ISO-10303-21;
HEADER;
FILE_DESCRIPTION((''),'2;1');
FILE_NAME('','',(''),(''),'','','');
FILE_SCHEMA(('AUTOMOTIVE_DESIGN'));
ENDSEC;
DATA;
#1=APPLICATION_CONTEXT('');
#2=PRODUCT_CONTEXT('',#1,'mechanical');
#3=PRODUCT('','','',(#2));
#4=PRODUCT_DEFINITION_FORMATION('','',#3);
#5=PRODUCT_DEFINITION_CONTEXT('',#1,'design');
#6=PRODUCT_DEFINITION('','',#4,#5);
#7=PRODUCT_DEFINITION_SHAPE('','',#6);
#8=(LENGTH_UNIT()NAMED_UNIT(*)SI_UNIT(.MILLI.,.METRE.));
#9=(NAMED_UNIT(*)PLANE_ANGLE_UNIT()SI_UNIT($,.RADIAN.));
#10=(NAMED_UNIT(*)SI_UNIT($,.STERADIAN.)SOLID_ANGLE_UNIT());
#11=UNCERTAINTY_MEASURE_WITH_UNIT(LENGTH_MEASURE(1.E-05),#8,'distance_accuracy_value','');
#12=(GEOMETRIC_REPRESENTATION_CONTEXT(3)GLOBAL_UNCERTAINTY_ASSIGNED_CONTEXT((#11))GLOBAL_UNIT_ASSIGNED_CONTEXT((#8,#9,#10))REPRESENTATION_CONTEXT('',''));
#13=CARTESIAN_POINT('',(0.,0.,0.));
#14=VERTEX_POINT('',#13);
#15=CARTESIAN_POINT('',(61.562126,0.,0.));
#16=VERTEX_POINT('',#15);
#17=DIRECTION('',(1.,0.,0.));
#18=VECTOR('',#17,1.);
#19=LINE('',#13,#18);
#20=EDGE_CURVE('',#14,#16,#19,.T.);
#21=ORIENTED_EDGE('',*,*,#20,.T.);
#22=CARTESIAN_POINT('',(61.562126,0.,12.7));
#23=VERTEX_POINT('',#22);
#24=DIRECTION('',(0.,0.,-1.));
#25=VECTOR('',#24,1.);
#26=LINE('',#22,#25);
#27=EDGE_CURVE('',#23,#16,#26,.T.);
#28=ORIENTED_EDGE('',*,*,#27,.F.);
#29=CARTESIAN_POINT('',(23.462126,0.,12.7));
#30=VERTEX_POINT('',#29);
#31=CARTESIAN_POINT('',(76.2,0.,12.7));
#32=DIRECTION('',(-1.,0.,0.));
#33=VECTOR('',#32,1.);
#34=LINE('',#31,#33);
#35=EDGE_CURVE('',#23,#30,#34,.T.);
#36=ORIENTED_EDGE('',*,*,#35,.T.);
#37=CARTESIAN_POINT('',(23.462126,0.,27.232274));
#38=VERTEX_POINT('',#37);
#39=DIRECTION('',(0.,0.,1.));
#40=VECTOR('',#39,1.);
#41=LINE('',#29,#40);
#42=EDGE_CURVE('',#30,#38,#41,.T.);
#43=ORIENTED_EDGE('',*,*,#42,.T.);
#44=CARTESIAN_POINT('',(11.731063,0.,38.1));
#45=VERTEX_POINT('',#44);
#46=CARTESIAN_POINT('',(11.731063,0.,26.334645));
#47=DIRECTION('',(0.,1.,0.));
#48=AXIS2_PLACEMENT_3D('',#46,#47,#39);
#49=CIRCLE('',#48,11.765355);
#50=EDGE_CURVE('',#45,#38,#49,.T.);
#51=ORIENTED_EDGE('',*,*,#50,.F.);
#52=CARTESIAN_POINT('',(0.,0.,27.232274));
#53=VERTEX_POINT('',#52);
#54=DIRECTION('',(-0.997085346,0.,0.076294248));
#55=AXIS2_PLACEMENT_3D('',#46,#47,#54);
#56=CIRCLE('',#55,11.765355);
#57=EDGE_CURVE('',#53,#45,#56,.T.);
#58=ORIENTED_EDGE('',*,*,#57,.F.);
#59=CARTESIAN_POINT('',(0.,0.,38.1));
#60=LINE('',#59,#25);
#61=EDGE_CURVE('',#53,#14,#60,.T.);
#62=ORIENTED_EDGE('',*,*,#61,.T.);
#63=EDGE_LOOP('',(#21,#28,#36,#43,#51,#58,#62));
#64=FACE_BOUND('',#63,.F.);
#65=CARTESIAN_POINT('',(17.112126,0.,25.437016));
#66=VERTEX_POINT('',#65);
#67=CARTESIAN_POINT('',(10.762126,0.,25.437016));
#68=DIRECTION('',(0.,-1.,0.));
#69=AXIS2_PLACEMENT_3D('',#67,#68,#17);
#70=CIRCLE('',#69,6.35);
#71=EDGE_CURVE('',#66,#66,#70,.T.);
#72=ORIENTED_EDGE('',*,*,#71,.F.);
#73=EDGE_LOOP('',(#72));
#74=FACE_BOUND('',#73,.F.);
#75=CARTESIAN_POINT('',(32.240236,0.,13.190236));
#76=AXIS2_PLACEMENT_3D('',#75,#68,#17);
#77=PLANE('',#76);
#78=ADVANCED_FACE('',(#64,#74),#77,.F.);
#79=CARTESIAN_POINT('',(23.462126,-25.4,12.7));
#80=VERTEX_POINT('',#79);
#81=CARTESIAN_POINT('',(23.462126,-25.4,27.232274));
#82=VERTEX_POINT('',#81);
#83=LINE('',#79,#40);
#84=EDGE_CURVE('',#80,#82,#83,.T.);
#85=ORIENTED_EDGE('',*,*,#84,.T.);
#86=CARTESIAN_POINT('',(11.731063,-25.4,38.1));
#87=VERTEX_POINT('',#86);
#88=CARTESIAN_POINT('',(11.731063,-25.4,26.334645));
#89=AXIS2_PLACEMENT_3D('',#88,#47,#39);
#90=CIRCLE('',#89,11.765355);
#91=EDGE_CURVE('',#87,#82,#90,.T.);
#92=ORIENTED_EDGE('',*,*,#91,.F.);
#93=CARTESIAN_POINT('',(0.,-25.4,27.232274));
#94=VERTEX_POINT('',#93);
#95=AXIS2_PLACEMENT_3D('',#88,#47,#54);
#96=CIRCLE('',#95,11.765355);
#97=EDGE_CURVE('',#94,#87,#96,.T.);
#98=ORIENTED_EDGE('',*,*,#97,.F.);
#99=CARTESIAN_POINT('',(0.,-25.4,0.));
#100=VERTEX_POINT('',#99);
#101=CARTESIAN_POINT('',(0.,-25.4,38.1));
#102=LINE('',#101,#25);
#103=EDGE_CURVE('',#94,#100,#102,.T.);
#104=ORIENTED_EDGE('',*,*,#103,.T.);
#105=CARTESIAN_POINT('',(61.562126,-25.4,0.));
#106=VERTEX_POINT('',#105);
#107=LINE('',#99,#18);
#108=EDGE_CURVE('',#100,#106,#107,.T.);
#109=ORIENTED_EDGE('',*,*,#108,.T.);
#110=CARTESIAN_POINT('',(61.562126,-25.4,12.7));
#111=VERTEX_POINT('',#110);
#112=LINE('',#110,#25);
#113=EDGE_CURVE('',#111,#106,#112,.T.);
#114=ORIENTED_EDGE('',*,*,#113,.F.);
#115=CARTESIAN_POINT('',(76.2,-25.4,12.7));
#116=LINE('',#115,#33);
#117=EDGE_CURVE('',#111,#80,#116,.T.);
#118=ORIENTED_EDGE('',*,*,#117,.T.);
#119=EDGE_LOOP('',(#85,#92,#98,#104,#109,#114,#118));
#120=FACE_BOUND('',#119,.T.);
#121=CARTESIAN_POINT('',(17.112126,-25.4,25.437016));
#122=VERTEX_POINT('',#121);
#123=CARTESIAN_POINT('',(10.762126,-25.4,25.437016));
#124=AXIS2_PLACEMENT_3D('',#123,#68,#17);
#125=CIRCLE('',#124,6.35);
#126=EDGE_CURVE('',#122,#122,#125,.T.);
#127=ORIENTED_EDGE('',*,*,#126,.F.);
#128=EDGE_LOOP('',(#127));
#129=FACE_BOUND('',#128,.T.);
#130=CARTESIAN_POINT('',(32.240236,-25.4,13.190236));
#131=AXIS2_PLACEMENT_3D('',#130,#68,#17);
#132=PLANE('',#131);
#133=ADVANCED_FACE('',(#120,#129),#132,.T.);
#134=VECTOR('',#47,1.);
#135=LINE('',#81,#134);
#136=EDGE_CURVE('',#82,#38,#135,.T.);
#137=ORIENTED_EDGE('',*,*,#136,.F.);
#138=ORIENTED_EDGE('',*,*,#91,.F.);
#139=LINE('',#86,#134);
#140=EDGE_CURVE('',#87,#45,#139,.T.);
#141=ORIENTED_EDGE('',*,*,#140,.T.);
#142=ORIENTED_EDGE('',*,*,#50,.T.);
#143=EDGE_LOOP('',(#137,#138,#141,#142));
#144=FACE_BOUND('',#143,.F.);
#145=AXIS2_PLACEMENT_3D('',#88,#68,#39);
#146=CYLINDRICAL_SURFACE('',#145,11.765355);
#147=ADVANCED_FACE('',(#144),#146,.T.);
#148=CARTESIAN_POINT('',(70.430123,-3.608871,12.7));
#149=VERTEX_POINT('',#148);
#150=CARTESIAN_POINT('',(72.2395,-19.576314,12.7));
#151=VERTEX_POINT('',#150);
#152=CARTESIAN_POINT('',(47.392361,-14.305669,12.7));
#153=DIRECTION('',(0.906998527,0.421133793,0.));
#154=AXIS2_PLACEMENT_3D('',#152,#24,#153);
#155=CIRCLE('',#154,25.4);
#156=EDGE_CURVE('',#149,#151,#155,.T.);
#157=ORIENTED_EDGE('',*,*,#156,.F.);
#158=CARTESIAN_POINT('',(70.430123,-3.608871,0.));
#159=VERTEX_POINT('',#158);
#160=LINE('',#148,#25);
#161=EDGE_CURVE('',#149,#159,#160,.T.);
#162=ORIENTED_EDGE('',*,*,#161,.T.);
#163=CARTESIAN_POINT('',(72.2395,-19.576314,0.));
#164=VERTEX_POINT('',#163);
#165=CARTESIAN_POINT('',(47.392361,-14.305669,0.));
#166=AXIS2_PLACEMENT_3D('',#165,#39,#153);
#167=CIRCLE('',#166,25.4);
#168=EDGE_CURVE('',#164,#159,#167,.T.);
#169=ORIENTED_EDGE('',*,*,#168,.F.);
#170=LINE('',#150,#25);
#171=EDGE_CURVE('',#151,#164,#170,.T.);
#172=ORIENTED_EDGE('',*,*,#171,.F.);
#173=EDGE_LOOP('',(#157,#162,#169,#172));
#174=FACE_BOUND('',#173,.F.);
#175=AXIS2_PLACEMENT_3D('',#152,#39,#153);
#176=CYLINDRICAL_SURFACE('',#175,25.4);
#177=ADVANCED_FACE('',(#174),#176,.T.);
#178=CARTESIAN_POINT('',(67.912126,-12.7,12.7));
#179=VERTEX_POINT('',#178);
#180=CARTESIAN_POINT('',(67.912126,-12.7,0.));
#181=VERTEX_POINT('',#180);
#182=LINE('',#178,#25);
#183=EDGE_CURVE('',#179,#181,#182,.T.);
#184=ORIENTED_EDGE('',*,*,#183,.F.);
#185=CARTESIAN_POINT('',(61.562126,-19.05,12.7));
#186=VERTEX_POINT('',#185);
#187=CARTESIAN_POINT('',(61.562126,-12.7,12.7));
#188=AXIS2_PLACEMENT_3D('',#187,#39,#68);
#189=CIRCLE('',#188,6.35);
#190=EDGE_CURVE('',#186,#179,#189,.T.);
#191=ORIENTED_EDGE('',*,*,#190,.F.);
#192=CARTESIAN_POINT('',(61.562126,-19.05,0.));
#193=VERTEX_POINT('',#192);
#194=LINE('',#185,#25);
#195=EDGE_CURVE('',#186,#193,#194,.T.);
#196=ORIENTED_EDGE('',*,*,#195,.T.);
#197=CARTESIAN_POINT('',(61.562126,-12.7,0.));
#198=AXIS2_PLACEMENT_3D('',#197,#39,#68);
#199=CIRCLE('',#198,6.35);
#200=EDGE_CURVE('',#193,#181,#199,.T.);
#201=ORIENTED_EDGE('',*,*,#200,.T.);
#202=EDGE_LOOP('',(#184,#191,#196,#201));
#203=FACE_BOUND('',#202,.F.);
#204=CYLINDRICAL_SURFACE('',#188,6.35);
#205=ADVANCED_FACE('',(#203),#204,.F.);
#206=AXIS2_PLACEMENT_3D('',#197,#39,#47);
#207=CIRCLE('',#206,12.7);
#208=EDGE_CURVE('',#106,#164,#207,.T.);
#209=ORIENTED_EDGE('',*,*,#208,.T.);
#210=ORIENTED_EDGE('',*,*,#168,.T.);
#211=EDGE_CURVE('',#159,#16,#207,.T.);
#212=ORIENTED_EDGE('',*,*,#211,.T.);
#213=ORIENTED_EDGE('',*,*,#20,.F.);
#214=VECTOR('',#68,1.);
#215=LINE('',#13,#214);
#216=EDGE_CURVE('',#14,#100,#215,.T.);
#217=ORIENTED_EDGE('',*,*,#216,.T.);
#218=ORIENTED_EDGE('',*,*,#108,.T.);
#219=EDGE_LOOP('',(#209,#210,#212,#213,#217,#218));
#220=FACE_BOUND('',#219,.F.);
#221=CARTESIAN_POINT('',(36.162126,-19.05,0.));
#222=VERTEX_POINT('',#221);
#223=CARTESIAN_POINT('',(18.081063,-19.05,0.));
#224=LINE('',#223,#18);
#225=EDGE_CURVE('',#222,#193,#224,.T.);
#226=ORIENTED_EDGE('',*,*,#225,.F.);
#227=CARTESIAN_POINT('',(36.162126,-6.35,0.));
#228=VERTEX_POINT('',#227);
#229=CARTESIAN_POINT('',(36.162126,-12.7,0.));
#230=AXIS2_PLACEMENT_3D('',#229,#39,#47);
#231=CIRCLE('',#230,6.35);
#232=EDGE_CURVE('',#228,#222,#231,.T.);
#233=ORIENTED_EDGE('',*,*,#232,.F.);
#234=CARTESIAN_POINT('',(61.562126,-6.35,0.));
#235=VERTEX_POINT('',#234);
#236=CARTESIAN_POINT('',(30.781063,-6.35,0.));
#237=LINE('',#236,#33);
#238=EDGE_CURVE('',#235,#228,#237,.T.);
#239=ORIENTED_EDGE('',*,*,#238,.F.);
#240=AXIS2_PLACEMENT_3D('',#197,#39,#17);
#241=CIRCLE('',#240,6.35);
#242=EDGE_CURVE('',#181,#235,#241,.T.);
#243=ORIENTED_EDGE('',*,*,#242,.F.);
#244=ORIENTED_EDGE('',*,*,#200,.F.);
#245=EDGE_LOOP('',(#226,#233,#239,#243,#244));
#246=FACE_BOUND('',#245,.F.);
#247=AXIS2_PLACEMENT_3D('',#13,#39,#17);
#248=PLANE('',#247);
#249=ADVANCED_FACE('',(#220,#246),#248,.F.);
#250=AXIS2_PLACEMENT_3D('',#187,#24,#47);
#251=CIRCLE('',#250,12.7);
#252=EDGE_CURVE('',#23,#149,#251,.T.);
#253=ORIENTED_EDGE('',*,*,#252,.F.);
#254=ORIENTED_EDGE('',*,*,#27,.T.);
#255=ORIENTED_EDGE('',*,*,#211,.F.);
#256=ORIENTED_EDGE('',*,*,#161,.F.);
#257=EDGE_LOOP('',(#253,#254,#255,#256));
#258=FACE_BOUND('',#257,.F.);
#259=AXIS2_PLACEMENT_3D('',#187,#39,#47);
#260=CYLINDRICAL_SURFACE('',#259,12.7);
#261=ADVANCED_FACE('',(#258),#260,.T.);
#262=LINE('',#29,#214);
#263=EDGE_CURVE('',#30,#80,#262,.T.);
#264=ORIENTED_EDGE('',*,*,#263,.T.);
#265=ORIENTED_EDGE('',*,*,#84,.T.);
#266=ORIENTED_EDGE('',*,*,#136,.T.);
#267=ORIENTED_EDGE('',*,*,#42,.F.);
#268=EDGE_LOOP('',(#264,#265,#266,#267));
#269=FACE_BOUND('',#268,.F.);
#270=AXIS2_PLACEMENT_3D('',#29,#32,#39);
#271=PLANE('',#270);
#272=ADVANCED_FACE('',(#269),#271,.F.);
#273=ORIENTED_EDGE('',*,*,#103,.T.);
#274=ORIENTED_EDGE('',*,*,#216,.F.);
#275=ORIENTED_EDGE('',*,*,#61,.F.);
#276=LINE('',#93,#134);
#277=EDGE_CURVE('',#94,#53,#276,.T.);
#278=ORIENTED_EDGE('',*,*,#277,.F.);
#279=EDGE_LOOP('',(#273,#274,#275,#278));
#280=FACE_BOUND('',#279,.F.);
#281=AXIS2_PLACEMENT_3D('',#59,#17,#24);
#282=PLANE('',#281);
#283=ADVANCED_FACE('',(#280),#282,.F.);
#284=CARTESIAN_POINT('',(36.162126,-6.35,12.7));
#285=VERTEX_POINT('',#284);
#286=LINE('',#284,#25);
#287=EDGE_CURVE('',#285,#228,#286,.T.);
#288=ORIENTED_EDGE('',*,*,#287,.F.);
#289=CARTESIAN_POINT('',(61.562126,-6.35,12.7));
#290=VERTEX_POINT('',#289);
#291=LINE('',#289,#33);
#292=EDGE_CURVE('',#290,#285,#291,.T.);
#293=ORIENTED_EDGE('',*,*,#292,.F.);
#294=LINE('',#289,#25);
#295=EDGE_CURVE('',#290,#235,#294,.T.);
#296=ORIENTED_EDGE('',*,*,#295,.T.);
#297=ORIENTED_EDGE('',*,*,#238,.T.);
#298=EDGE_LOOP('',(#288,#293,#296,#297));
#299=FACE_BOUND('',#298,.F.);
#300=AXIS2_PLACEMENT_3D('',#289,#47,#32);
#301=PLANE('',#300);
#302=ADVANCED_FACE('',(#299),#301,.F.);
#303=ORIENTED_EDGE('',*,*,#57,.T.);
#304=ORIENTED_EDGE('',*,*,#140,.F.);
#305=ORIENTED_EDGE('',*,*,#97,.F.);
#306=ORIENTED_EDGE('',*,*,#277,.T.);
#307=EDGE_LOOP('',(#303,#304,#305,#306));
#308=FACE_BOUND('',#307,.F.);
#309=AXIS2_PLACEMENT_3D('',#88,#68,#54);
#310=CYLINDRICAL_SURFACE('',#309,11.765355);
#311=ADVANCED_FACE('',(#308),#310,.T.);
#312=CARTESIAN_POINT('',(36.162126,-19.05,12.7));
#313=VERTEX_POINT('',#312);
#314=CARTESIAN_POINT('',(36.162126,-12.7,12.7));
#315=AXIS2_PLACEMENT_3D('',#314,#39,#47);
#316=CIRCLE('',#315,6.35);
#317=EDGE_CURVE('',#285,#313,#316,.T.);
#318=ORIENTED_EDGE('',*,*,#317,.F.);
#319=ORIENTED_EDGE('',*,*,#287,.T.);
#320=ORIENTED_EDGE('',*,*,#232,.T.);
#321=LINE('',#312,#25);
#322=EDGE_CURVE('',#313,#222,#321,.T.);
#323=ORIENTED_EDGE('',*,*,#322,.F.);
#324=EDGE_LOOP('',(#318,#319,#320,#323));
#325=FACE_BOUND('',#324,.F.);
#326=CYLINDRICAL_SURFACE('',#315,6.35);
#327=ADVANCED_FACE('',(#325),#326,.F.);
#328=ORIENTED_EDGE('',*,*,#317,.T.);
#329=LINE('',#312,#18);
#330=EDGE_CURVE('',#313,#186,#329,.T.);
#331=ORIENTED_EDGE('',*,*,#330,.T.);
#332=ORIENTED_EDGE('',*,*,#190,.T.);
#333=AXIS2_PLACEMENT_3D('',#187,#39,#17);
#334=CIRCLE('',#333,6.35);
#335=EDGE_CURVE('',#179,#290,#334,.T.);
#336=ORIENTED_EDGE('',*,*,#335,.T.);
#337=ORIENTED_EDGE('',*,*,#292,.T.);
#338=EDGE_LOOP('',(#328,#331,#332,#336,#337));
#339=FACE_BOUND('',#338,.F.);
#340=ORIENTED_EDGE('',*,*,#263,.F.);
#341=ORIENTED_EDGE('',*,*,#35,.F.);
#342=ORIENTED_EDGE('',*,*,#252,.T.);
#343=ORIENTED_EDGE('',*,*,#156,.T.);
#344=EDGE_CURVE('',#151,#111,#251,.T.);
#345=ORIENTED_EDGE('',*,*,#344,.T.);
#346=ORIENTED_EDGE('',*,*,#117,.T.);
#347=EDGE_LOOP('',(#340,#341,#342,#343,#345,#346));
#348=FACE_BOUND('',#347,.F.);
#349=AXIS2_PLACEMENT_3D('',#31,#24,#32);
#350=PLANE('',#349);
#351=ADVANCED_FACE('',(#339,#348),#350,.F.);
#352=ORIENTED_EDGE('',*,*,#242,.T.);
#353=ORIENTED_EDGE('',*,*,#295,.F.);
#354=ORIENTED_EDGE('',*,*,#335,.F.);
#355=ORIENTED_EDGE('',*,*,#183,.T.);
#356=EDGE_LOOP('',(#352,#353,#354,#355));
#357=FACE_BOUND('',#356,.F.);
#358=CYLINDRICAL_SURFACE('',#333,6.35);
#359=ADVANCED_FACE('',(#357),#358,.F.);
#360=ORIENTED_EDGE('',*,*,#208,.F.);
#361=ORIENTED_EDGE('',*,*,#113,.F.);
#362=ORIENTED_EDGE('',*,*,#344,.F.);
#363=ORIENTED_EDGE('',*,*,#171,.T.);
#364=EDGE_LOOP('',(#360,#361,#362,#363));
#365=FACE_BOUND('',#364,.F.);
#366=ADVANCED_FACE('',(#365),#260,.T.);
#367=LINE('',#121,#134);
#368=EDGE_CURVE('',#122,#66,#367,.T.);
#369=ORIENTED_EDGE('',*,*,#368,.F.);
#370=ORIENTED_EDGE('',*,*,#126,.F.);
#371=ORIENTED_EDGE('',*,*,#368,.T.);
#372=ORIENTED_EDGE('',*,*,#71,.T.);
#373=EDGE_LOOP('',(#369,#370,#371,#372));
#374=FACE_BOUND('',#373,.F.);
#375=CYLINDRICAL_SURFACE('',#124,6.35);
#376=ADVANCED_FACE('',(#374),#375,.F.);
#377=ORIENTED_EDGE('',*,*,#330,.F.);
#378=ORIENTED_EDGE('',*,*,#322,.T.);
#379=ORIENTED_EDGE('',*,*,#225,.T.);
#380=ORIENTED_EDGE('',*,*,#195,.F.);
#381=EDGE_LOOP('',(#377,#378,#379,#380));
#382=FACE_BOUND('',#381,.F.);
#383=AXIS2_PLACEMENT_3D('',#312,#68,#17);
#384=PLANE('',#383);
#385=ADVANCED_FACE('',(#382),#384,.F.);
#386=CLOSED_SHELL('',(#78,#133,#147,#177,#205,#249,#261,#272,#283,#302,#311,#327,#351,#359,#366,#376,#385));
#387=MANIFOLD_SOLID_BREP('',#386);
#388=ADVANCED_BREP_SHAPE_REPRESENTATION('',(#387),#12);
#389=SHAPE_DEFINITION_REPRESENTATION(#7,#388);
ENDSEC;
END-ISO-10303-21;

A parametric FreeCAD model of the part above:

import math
import FreeCAD as App
import Part
import Sketcher
from FreeCAD import Vector
Q = App.Units.Quantity


def add_polygon(sketch, points):
    """Adds a closed chain of lines whose ends are joined by coincident constraints."""
    first, n = sketch.GeometryCount, len(points)
    for a, b in zip(points, points[1:] + points[:1]):
        sketch.addGeometry(Part.LineSegment(App.Vector(*a, 0), App.Vector(*b, 0)), False)
    for i in range(n):
        sketch.addConstraint(Sketcher.Constraint("Coincident", first + i, 2, first + (i + 1) % n, 1))

doc = App.newDocument("Part")
body = doc.addObject("PartDesign::Body", "Body")

# Sketch on XZ plane
sketch1 = body.newObject("Sketcher::SketchObject", "Sketch")
sketch1.AttachmentSupport = (doc.getObject("XZ_Plane"), [""])
sketch1.MapMode = "FlatFace"
add_polygon(sketch1, [(0, 38), (0, 0), (76, 0), (76, 13), (23, 13), (23, 38)])  # lines 0-5
sketch1.addConstraint(Sketcher.Constraint("Vertical", 0))
sketch1.addConstraint(Sketcher.Constraint("Horizontal", 1))
sketch1.addConstraint(Sketcher.Constraint("Vertical", 2))
sketch1.addConstraint(Sketcher.Constraint("Horizontal", 3))
sketch1.addConstraint(Sketcher.Constraint("Vertical", 4))
sketch1.addConstraint(Sketcher.Constraint("Horizontal", 5))
sketch1.addConstraint(Sketcher.Constraint("Coincident", 0, 2, -1, 1))
sketch1.addConstraint(Sketcher.Constraint("DistanceX", 1, 1, 1, 2, Q("3 in")))
sketch1.addConstraint(Sketcher.Constraint("DistanceY", 4, 1, 4, 2, Q("1 in")))
sketch1.addConstraint(Sketcher.Constraint("DistanceY", 0, 2, 0, 1, Q("1.5 in")))
sketch1.addConstraint(Sketcher.Constraint("DistanceX", 3, 2, 3, 1, Q("52.737874 mm")))
pad1 = body.newObject("PartDesign::Pad", "Pad")
pad1.Profile = sketch1
pad1.Length = Q("1 in")

# Sketch on XZ plane
sketch2 = body.newObject("Sketcher::SketchObject", "Sketch001")
sketch2.AttachmentSupport = (doc.getObject("XZ_Plane"), [""])
sketch2.MapMode = "FlatFace"
sketch2.AttachmentOffset = App.Placement(Vector(0, 0, 1 * 25.4), App.Rotation())
sketch2.addGeometry(Part.ArcOfCircle(Part.Circle(Vector(12, 26, 0), Vector(0, 0, 1), 12), math.radians(4), math.radians(90)), False)
sketch2.addGeometry(Part.LineSegment(Vector(23, 27, 0), Vector(23, 38, 0)), False)
sketch2.addGeometry(Part.LineSegment(Vector(23, 38, 0), Vector(12, 38, 0)), False)
sketch2.addGeometry(Part.ArcOfCircle(Part.Circle(Vector(12, 26, 0), Vector(0, 0, 1), 12), math.radians(90), math.radians(176)), False)
sketch2.addGeometry(Part.LineSegment(Vector(12, 38, 0), Vector(0, 38, 0)), False)
sketch2.addGeometry(Part.LineSegment(Vector(0, 38, 0), Vector(0, 27, 0)), False)
sketch2.addGeometry(Part.Circle(Vector(11, 25, 0), Vector(0, 0, 1), 6), False)
sketch2.addConstraint(Sketcher.Constraint("Coincident", 0, 1, 1, 1))
sketch2.addConstraint(Sketcher.Constraint("Coincident", 1, 2, 2, 1))
sketch2.addConstraint(Sketcher.Constraint("Tangent", 2, 2, 0, 2))
sketch2.addConstraint(Sketcher.Constraint("Tangent", 3, 1, 4, 1))
sketch2.addConstraint(Sketcher.Constraint("Coincident", 4, 2, 5, 1))
sketch2.addConstraint(Sketcher.Constraint("Coincident", 5, 2, 3, 2))
sketch2.addConstraint(Sketcher.Constraint("Vertical", 1))
sketch2.addConstraint(Sketcher.Constraint("Horizontal", 2))
sketch2.addConstraint(Sketcher.Constraint("Horizontal", 4))
sketch2.addConstraint(Sketcher.Constraint("Vertical", 5))
sketch2.addConstraint(Sketcher.Constraint("Coincident", 3, 3, 0, 3))
sketch2.addConstraint(Sketcher.Constraint("Equal", 0, 3))
sketch2.addConstraint(Sketcher.Constraint("PointOnObject", 4, 2, -2))
sketch2.addConstraint(Sketcher.Constraint("Horizontal", 0, 1, 5, 2))
sketch2.addConstraint(Sketcher.Constraint("Diameter", 6, Q("0.5 in")))
sketch2.addConstraint(Sketcher.Constraint("DistanceY", -1, 1, 1, 2, Q("1.5 in")))
sketch2.addConstraint(Sketcher.Constraint("DistanceX", 6, 3, 0, 1, Q("0.5 in")))
sketch2.addConstraint(Sketcher.Constraint("Radius", 0, Q("11.765355 mm")))
sketch2.addConstraint(Sketcher.Constraint("DistanceX", 2, 2, 2, 1, Q("11.731063 mm")))
sketch2.addConstraint(Sketcher.Constraint("DistanceY", 6, 3, 0, 3, Q("0.897629 mm")))
pocket1 = body.newObject("PartDesign::Pocket", "Pocket")
pocket1.Profile = sketch2
pocket1.Length = Q("1 in")

# Sketch on XY plane
sketch3 = body.newObject("Sketcher::SketchObject", "Sketch002")
sketch3.AttachmentSupport = (doc.getObject("XY_Plane"), [""])
sketch3.MapMode = "FlatFace"
sketch3.AttachmentOffset = App.Placement(Vector(0, 0, 0.5 * 25.4), App.Rotation())
sketch3.addGeometry(Part.ArcOfCircle(Part.Circle(Vector(62, -13, 0), Vector(0, 0, 1), 6), math.radians(0), math.radians(90)), False)
sketch3.addGeometry(Part.LineSegment(Vector(62, -6, 0), Vector(36, -6, 0)), False)
sketch3.addGeometry(Part.ArcOfCircle(Part.Circle(Vector(36, -13, 0), Vector(0, 0, 1), 6), math.radians(90), math.radians(270)), False)
sketch3.addGeometry(Part.LineSegment(Vector(36, -19, 0), Vector(62, -19, 0)), False)
sketch3.addGeometry(Part.ArcOfCircle(Part.Circle(Vector(62, -13, 0), Vector(0, 0, 1), 6), math.radians(-90), math.radians(0)), False)
sketch3.addGeometry(Part.ArcOfCircle(Part.Circle(Vector(62, -13, 0), Vector(0, 0, 1), 13), math.radians(-90), math.radians(90)), False)
sketch3.addGeometry(Part.LineSegment(Vector(62, -25, 0), Vector(76, -25, 0)), False)
sketch3.addGeometry(Part.LineSegment(Vector(76, -25, 0), Vector(76, 0, 0)), False)
sketch3.addGeometry(Part.LineSegment(Vector(76, 0, 0), Vector(62, 0, 0)), False)
sketch3.addConstraint(Sketcher.Constraint("Tangent", 0, 2, 1, 1))
sketch3.addConstraint(Sketcher.Constraint("Tangent", 1, 2, 2, 1))
sketch3.addConstraint(Sketcher.Constraint("Tangent", 2, 2, 3, 1))
sketch3.addConstraint(Sketcher.Constraint("Tangent", 3, 2, 4, 1))
sketch3.addConstraint(Sketcher.Constraint("Tangent", 4, 2, 0, 1))
sketch3.addConstraint(Sketcher.Constraint("Tangent", 5, 1, 6, 1))
sketch3.addConstraint(Sketcher.Constraint("Coincident", 6, 2, 7, 1))
sketch3.addConstraint(Sketcher.Constraint("Coincident", 7, 2, 8, 1))
sketch3.addConstraint(Sketcher.Constraint("Tangent", 8, 2, 5, 2))
sketch3.addConstraint(Sketcher.Constraint("Horizontal", 1))
sketch3.addConstraint(Sketcher.Constraint("Horizontal", 3))
sketch3.addConstraint(Sketcher.Constraint("Horizontal", 6))
sketch3.addConstraint(Sketcher.Constraint("Vertical", 7))
sketch3.addConstraint(Sketcher.Constraint("Horizontal", 8))
sketch3.addConstraint(Sketcher.Constraint("Coincident", 5, 3, 0, 3))
sketch3.addConstraint(Sketcher.Constraint("Equal", 0, 2))
sketch3.addConstraint(Sketcher.Constraint("PointOnObject", 7, 2, -1))
sketch3.addConstraint(Sketcher.Constraint("Horizontal", 5, 3, 4, 2))
sketch3.addConstraint(Sketcher.Constraint("Equal", 3, 7))
sketch3.addConstraint(Sketcher.Constraint("Radius", 5, Q("0.5 in")))
sketch3.addConstraint(Sketcher.Constraint("Radius", 0, Q("0.25 in")))
sketch3.addConstraint(Sketcher.Constraint("DistanceX", -1, 1, 6, 2, Q("3 in")))
sketch3.addConstraint(Sketcher.Constraint("DistanceX", 6, 1, 6, 2, Q("14.637874 mm")))
pocket2 = body.newObject("PartDesign::Pocket", "Pocket001")
pocket2.Profile = sketch3
pocket2.Length = Q("1 in")

# Sketch on XY plane
sketch4 = body.newObject("Sketcher::SketchObject", "Sketch003")
sketch4.AttachmentSupport = (doc.getObject("XY_Plane"), [""])
sketch4.MapMode = "FlatFace"
sketch4.AttachmentOffset = App.Placement(Vector(0, 0, 0.5 * 25.4), App.Rotation())
sketch4.addGeometry(Part.ArcOfCircle(Part.Circle(Vector(47, -14, 0), Vector(0, 0, 1), 25), math.radians(-12), math.radians(25)), False)
sketch4.addGeometry(Part.ArcOfCircle(Part.Circle(Vector(62, -13, 0), Vector(0, 0, 1), 13), math.radians(-33), math.radians(46)), False)
sketch4.addConstraint(Sketcher.Constraint("Coincident", 0, 1, 1, 1))
sketch4.addConstraint(Sketcher.Constraint("Coincident", 1, 2, 0, 2))
sketch4.addConstraint(Sketcher.Constraint("Radius", 0, Q("1 in")))
sketch4.addConstraint(Sketcher.Constraint("Radius", 1, Q("0.5 in")))
sketch4.addConstraint(Sketcher.Constraint("DistanceY", 1, 3, -1, 1, Q("0.5 in")))
sketch4.addConstraint(Sketcher.Constraint("DistanceX", -1, 1, 0, 1, Q("72.2395 mm")))
sketch4.addConstraint(Sketcher.Constraint("DistanceY", 0, 3, 1, 2, Q("10.696798 mm")))
sketch4.addConstraint(Sketcher.Constraint("DistanceX", -1, 1, 0, 3, Q("47.392361 mm")))
pocket3 = body.newObject("PartDesign::Pocket", "Pocket002")
pocket3.Profile = sketch4
pocket3.Length = Q("1 in")

doc.recompute()
